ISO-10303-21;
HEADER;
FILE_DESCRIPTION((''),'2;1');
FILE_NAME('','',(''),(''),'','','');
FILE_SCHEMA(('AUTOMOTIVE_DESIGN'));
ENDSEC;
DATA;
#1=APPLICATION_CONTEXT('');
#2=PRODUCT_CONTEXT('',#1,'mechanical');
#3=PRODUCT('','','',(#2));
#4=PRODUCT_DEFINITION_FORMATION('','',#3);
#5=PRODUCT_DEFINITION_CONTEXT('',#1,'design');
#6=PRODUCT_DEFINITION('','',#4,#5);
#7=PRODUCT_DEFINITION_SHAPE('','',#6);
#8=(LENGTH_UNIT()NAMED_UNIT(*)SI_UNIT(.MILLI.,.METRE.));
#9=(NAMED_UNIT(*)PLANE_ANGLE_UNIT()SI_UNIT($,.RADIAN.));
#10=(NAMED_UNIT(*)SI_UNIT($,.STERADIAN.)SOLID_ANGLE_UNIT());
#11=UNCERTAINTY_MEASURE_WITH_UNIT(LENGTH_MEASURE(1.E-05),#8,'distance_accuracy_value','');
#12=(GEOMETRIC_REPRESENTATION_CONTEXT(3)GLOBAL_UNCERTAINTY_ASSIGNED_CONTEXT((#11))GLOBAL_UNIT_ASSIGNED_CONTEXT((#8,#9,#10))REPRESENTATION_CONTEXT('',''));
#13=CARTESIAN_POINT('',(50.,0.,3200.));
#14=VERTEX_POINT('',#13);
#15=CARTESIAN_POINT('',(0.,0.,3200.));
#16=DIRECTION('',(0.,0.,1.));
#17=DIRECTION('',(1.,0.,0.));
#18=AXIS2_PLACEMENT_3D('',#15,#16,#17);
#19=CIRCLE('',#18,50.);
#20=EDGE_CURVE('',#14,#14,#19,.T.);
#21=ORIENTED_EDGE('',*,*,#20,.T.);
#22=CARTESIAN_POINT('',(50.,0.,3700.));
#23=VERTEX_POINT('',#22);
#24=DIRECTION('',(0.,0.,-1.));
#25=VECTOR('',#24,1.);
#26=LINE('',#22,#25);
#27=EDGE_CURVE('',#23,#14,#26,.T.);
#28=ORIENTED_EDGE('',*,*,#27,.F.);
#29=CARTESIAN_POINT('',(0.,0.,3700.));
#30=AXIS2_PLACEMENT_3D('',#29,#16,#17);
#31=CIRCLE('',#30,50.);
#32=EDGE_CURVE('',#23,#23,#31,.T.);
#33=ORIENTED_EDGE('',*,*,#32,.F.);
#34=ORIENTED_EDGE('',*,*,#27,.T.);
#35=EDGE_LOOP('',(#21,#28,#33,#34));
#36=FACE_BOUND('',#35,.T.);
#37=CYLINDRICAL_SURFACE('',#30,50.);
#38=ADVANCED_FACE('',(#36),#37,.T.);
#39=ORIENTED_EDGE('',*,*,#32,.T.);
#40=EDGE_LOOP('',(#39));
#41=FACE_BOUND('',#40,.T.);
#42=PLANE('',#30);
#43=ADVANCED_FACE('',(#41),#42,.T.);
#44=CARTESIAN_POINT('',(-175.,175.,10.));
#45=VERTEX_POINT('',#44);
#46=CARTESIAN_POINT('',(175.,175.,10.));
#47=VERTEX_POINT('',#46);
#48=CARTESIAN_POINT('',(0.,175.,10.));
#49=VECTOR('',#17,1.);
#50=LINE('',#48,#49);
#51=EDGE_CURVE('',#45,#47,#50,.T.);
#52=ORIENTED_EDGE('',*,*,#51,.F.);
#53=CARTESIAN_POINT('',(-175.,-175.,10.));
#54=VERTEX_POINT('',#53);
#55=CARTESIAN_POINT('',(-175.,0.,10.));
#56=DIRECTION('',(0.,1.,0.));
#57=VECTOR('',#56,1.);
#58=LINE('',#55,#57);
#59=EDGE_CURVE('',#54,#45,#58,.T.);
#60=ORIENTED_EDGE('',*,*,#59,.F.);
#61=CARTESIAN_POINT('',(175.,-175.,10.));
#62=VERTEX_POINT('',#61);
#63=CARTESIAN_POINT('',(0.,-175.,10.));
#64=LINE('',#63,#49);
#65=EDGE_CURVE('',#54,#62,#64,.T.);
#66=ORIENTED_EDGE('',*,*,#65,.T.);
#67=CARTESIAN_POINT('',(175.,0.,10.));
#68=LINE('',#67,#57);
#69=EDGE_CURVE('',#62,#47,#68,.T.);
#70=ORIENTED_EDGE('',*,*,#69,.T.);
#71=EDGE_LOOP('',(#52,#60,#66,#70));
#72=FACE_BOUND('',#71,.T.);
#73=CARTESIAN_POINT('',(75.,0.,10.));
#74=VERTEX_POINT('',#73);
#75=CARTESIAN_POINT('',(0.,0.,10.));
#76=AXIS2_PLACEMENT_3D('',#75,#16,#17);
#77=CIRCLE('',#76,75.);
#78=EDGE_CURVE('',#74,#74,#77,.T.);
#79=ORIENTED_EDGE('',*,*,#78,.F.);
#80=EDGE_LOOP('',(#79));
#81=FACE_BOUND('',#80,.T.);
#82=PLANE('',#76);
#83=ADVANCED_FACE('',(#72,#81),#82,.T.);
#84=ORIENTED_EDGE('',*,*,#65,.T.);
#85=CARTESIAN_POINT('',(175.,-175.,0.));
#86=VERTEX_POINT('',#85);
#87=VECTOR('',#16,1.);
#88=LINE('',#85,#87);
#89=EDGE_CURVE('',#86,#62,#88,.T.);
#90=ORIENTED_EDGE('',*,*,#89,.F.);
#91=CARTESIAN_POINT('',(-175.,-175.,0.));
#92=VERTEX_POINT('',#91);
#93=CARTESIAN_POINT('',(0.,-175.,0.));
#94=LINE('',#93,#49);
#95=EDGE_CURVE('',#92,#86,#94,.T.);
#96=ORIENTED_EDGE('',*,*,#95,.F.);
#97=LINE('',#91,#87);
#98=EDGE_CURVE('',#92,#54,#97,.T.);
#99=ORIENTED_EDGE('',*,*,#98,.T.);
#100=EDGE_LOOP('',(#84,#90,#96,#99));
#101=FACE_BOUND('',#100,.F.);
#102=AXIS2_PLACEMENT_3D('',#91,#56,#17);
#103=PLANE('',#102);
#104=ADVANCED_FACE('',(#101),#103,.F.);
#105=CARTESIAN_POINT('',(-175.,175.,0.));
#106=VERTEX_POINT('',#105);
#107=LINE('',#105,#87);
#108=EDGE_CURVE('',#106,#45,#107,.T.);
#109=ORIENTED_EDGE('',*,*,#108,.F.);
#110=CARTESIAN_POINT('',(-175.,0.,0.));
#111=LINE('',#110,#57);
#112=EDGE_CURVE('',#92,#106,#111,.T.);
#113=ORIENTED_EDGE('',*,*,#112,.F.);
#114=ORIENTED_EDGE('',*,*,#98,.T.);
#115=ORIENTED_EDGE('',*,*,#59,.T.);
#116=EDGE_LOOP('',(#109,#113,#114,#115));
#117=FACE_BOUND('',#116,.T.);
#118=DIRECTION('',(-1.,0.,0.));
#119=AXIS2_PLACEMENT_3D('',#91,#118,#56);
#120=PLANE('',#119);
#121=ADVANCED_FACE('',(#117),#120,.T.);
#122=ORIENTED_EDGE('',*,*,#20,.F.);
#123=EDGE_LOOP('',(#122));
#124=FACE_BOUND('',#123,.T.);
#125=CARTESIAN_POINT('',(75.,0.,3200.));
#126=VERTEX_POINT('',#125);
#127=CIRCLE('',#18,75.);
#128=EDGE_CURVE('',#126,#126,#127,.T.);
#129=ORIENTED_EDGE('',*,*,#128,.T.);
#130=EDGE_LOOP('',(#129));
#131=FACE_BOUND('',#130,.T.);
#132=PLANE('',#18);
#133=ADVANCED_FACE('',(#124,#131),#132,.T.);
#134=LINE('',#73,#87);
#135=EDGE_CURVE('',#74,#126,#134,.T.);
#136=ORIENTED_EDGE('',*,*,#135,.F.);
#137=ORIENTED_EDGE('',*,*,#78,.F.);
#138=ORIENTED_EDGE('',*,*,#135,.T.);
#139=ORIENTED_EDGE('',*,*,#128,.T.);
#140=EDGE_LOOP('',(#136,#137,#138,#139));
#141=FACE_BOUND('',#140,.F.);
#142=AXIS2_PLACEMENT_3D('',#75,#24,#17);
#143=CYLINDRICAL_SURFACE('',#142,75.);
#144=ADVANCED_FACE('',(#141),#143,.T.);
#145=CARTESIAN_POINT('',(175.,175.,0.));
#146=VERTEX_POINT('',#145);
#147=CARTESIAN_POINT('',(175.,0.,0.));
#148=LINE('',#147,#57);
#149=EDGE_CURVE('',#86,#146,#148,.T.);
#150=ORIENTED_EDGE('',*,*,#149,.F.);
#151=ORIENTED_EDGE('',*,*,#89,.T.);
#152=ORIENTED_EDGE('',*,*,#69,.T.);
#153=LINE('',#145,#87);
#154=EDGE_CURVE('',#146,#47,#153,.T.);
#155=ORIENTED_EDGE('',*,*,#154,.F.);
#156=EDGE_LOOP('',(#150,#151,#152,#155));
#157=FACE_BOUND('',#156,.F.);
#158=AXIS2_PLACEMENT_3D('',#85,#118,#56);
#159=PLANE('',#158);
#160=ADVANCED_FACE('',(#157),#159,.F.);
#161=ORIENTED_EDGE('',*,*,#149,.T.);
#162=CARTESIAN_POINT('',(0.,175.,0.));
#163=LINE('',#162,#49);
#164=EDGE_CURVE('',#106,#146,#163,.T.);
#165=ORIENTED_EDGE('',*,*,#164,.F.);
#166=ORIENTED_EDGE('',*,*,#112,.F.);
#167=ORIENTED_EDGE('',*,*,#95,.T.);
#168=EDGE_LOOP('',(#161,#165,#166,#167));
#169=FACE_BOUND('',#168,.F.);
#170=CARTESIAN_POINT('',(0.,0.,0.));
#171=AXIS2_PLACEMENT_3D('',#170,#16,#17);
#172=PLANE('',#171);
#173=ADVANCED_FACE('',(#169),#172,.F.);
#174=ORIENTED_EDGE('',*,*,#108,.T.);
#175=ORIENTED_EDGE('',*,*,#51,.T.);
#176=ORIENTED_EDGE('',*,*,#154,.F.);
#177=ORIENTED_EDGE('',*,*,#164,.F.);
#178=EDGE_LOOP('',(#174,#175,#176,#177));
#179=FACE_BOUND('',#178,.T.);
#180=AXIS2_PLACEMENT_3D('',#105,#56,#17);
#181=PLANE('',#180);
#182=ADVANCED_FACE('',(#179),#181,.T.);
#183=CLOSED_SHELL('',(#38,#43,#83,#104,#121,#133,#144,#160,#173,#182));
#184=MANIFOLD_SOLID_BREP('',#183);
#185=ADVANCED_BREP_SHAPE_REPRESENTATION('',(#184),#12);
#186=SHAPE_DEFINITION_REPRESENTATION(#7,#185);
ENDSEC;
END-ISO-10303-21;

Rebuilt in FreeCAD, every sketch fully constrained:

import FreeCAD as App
import Part
import Sketcher

V = App.Vector


def add_polygon(sketch, points):
    """Adds a closed chain of lines whose ends are joined by coincident constraints."""
    first, n = sketch.GeometryCount, len(points)
    for a, b in zip(points, points[1:] + points[:1]):
        sketch.addGeometry(Part.LineSegment(App.Vector(*a, 0), App.Vector(*b, 0)), False)
    for i in range(n):
        sketch.addConstraint(Sketcher.Constraint("Coincident", first + i, 2, first + (i + 1) % n, 1))

doc = App.newDocument("Part")
params = doc.addObject("Spreadsheet::Sheet", "Params")
for row, (alias, value) in enumerate([
    ("sketch1_width", "350 mm"),
    ("pad1_length", "10 mm"),
    ("sketch2_diameter", "150 mm"),
    ("pad2_length", "3690 mm"),
    ("sketch3_diameter", "150 mm"),
    ("sketch3_diameter2", "100 mm"),
    ("pocket1_length", "500 mm"),
], start=1):
    params.set(f"A{row}", alias)
    params.set(f"B{row}", "=" + value)
    params.setAlias(f"B{row}", alias)

body = doc.addObject("PartDesign::Body", "Body")

# Sketch on XY plane
sketch1 = body.newObject("Sketcher::SketchObject", "Sketch")
sketch1.AttachmentSupport = (doc.getObject("XY_Plane"), [""])
sketch1.MapMode = "FlatFace"
add_polygon(sketch1, [(-175, 175), (-175, -175), (175, -175), (175, 175)])  # lines 0-3
sketch1.addConstraint([
    Sketcher.Constraint("Vertical", 0),
    Sketcher.Constraint("Horizontal", 1),
    Sketcher.Constraint("Vertical", 2),
    Sketcher.Constraint("Horizontal", 3),
    Sketcher.Constraint("Symmetric", 0, 2, 2, 2, -1, 1),
    Sketcher.Constraint("Equal", 3, 0),
    Sketcher.Constraint("DistanceX", 1, 1, 1, 2, 350.0),
])
sketch1.setExpression("Constraints[10]", "Params.sketch1_width")
pad1 = body.newObject("PartDesign::Pad", "Pad")
pad1.Profile = sketch1
pad1.setExpression("Length", "Params.pad1_length")

# Sketch on XY plane
sketch2 = body.newObject("Sketcher::SketchObject", "Sketch001")
sketch2.AttachmentSupport = (doc.getObject("XY_Plane"), [""])
sketch2.MapMode = "FlatFace"
sketch2.AttachmentOffset = App.Placement(V(0, 0, 10), App.Rotation())
sketch2.addGeometry(Part.Circle(V(0, 0, 0), V(0, 0, 1), 75), False)
sketch2.addConstraint([
    Sketcher.Constraint("Coincident", 0, 3, -1, 1),
    Sketcher.Constraint("Diameter", 0, 150.0),
])
sketch2.setExpression("Constraints[1]", "Params.sketch2_diameter")
pad2 = body.newObject("PartDesign::Pad", "Pad001")
pad2.Profile = sketch2
pad2.setExpression("Length", "Params.pad2_length")

# Sketch on XY plane
sketch3 = body.newObject("Sketcher::SketchObject", "Sketch002")
sketch3.AttachmentSupport = (doc.getObject("XY_Plane"), [""])
sketch3.MapMode = "FlatFace"
sketch3.AttachmentOffset = App.Placement(V(0, 0, 3700), App.Rotation())
sketch3.addGeometry([
    Part.Circle(V(0, 0, 0), V(0, 0, 1), 75),
    Part.Circle(V(0, 0, 0), V(0, 0, 1), 50),
], False)
sketch3.addConstraint([
    Sketcher.Constraint("Coincident", 0, 3, -1, 1),
    Sketcher.Constraint("Coincident", 1, 3, -1, 1),
    Sketcher.Constraint("Diameter", 0, 150.0),
    Sketcher.Constraint("Diameter", 1, 100.0),
])
sketch3.setExpression("Constraints[2]", "Params.sketch3_diameter")
sketch3.setExpression("Constraints[3]", "Params.sketch3_diameter2")
pocket1 = body.newObject("PartDesign::Pocket", "Pocket")
pocket1.Profile = sketch3
pocket1.setExpression("Length", "Params.pocket1_length")

doc.recompute()
